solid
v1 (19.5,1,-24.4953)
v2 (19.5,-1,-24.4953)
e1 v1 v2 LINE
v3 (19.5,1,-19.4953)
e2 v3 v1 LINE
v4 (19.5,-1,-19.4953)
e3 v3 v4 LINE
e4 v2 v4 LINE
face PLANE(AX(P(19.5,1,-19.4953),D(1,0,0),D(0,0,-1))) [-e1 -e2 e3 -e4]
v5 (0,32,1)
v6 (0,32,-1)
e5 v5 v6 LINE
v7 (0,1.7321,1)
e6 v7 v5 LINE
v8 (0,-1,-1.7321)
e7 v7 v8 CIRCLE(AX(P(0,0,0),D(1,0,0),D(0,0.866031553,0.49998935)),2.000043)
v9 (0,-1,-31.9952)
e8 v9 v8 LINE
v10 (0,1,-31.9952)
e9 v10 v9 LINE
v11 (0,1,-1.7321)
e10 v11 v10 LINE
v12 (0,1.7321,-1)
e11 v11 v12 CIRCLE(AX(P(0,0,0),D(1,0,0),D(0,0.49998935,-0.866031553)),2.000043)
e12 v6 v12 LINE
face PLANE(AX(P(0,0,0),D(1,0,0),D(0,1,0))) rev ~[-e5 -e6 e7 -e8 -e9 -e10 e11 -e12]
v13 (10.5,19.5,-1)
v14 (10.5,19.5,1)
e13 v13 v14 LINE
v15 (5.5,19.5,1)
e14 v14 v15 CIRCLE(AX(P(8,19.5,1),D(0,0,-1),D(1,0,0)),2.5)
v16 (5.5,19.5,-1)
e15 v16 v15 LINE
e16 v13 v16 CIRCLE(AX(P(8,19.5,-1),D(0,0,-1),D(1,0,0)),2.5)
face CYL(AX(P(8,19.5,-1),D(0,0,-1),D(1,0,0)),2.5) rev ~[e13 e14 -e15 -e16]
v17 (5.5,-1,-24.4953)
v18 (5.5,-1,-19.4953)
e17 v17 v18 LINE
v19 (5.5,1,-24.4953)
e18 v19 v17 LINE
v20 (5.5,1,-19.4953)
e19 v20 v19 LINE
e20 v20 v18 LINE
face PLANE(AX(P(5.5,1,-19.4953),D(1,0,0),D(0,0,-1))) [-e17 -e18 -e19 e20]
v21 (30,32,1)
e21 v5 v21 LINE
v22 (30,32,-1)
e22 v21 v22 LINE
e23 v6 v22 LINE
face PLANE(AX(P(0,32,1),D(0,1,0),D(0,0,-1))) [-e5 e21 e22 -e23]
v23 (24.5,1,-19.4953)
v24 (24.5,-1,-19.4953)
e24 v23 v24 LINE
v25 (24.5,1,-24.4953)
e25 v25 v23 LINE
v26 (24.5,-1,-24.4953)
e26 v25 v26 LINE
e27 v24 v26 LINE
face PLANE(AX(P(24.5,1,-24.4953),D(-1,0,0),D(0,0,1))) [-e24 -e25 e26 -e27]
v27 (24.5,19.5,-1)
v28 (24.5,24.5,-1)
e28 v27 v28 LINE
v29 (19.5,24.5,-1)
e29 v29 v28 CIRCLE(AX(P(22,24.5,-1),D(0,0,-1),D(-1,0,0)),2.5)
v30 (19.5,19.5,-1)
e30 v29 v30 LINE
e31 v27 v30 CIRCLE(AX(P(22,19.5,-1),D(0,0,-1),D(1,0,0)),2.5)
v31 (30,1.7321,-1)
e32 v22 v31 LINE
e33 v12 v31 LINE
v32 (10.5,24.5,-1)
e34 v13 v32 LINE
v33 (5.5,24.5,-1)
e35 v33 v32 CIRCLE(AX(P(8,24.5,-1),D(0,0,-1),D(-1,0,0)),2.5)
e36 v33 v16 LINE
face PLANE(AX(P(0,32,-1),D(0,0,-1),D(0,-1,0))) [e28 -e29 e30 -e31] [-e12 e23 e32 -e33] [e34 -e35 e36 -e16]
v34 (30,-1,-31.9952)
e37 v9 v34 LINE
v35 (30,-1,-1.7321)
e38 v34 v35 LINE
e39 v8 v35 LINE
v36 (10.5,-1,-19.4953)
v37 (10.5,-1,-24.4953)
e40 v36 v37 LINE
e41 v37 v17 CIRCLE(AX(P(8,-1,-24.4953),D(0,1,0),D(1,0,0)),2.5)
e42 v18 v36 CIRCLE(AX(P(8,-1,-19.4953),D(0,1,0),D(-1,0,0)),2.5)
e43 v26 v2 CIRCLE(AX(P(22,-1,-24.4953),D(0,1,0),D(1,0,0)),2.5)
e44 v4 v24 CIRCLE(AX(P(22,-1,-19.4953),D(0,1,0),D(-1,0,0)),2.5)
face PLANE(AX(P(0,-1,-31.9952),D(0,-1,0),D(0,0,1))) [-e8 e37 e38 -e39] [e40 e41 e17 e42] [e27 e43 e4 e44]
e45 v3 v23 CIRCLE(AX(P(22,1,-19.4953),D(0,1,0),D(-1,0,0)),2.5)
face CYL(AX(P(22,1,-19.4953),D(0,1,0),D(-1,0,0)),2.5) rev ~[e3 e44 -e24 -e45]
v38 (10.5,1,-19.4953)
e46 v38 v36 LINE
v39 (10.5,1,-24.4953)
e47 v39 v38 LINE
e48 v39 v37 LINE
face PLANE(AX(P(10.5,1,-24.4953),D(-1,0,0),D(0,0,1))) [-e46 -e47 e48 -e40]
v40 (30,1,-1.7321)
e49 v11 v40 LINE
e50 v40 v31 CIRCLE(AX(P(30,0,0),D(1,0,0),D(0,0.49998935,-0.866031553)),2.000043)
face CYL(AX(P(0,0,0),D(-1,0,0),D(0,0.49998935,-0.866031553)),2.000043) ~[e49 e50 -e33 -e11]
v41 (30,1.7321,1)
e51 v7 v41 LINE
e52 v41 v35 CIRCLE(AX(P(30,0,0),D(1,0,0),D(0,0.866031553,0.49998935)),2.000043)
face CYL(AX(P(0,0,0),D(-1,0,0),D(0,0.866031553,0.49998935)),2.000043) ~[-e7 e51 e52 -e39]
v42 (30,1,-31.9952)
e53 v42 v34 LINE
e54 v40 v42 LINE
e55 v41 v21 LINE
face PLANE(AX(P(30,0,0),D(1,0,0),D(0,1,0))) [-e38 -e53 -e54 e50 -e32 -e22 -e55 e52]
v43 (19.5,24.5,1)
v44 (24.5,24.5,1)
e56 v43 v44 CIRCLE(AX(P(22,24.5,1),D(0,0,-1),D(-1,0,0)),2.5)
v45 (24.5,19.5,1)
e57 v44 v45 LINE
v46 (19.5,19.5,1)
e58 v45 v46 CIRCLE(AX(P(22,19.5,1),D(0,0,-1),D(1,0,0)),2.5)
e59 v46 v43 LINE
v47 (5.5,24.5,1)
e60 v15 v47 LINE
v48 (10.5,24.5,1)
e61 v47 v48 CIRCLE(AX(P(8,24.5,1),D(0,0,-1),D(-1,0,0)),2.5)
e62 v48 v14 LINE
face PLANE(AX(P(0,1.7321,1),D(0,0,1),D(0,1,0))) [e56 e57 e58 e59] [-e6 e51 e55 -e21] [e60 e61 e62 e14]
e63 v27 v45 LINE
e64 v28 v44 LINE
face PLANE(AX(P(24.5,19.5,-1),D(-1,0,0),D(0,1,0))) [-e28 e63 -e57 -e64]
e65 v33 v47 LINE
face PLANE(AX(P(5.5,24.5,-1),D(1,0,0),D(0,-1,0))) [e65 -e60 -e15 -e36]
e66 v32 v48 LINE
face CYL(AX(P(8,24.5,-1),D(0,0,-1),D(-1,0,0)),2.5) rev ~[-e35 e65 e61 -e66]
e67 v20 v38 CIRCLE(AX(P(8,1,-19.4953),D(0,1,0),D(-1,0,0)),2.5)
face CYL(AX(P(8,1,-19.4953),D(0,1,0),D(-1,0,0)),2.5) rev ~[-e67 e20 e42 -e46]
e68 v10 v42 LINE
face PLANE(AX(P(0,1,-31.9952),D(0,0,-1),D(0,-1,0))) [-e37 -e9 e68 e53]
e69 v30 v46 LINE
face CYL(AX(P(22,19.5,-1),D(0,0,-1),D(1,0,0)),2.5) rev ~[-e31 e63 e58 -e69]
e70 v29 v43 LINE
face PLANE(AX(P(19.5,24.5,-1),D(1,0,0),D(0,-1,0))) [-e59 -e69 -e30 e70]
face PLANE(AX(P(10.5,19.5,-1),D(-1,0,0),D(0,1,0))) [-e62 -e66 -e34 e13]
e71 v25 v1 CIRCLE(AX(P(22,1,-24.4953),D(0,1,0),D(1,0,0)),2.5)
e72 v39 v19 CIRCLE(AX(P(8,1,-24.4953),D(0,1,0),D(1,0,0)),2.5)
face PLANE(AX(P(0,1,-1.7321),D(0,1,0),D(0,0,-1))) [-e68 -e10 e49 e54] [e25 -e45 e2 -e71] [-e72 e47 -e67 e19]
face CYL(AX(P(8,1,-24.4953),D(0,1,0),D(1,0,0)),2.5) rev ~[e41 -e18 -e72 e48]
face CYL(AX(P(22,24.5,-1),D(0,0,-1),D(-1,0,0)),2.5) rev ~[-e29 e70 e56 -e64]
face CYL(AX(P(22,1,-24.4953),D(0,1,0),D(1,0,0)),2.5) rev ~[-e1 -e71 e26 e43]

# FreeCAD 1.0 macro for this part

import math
import FreeCAD as App
import Part
import Sketcher
Q = App.Units.Quantity

doc = App.newDocument("Part")
body = doc.addObject("PartDesign::Body", "Body")

# Sketch on YZ plane
sketch1 = doc.addObject("Sketcher::SketchObject", "Sketch")
body.addObject(sketch1)
sketch1.AttachmentSupport = (doc.YZ_Plane, [""])
sketch1.MapMode = "FlatFace"
sketch1.addGeometry([
    Part.LineSegment(App.Vector(32, 1, 0), App.Vector(1.7, 1, 0)),  # 0
    Part.ArcOfCircle(Part.Circle(App.Vector(0, 0, 0), App.Vector(0, 0, 1), 2), math.radians(30), math.radians(240)),  # 1
    Part.LineSegment(App.Vector(-1, -1.7, 0), App.Vector(-1, -32, 0)),  # 2
    Part.LineSegment(App.Vector(-1, -32, 0), App.Vector(1, -32, 0)),  # 3
    Part.LineSegment(App.Vector(1, -32, 0), App.Vector(1, -1.7, 0)),  # 4
    Part.ArcOfCircle(Part.Circle(App.Vector(0, 0, 0), App.Vector(0, 0, 1), 2), math.radians(-60), math.radians(-30)),  # 5
    Part.LineSegment(App.Vector(1.7, -1, 0), App.Vector(32, -1, 0)),  # 6
    Part.LineSegment(App.Vector(32, -1, 0), App.Vector(32, 1, 0)),  # 7
], False)
sketch1.addConstraint([
    Sketcher.Constraint("Coincident", 0, 2, 1, 1),
    Sketcher.Constraint("Coincident", 1, 2, 2, 1),
    Sketcher.Constraint("Coincident", 2, 2, 3, 1),
    Sketcher.Constraint("Coincident", 3, 2, 4, 1),
    Sketcher.Constraint("Coincident", 4, 2, 5, 1),
    Sketcher.Constraint("Coincident", 5, 2, 6, 1),
    Sketcher.Constraint("Coincident", 6, 2, 7, 1),
    Sketcher.Constraint("Coincident", 7, 2, 0, 1),
    Sketcher.Constraint("Horizontal", 0),
    Sketcher.Constraint("Vertical", 2),
    Sketcher.Constraint("Horizontal", 3),
    Sketcher.Constraint("Vertical", 4),
    Sketcher.Constraint("Horizontal", 6),
    Sketcher.Constraint("Vertical", 7),
    Sketcher.Constraint("Coincident", 1, 3, -1, 1),
    Sketcher.Constraint("Coincident", 5, 3, -1, 1),
    Sketcher.Constraint("Equal", 1, 5),
    Sketcher.Constraint("Horizontal", 1, 2, 4, 2),
    Sketcher.Constraint("Vertical", 0, 2, 5, 2),
    Sketcher.Constraint("Equal", 3, 7),
    Sketcher.Constraint("Radius", 1, Q("2 mm")),
    Sketcher.Constraint("DistanceX", 3, 1, 3, 2, Q("2 mm")),
    Sketcher.Constraint("DistanceX", 0, 2, 0, 1, Q("30.268 mm")),
    Sketcher.Constraint("DistanceY", 2, 2, 2, 1, Q("30.263 mm")),
])
pad1 = doc.addObject("PartDesign::Pad", "Pad")
body.addObject(pad1)
pad1.Profile = sketch1
pad1.Length = 30

# Sketch on XZ plane
sketch2 = doc.addObject("Sketcher::SketchObject", "Sketch001")
body.addObject(sketch2)
sketch2.AttachmentSupport = (doc.XZ_Plane, [""])
sketch2.MapMode = "FlatFace"
sketch2.AttachmentOffset = App.Placement(App.Vector(0, 0, -1), App.Rotation())
sketch2.addGeometry([
    Part.LineSegment(App.Vector(10.5, -19.5, 0), App.Vector(10.5, -24.5, 0)),  # 0
    Part.ArcOfCircle(Part.Circle(App.Vector(8, -24.5, 0), App.Vector(0, 0, 1), 2.5), math.radians(180), math.radians(360)),  # 1
    Part.LineSegment(App.Vector(5.5, -24.5, 0), App.Vector(5.5, -19.5, 0)),  # 2
    Part.ArcOfCircle(Part.Circle(App.Vector(8, -19.5, 0), App.Vector(0, 0, 1), 2.5), math.radians(0), math.radians(180)),  # 3
    Part.LineSegment(App.Vector(24.5, -19.5, 0), App.Vector(24.5, -24.5, 0)),  # 4
    Part.ArcOfCircle(Part.Circle(App.Vector(22, -24.5, 0), App.Vector(0, 0, 1), 2.5), math.radians(180), math.radians(360)),  # 5
    Part.LineSegment(App.Vector(19.5, -24.5, 0), App.Vector(19.5, -19.5, 0)),  # 6
    Part.ArcOfCircle(Part.Circle(App.Vector(22, -19.5, 0), App.Vector(0, 0, 1), 2.5), math.radians(0), math.radians(180)),  # 7
], False)
sketch2.addConstraint([
    Sketcher.Constraint("Tangent", 0, 2, 1, 2),
    Sketcher.Constraint("Tangent", 1, 1, 2, 1),
    Sketcher.Constraint("Tangent", 2, 2, 3, 2),
    Sketcher.Constraint("Tangent", 3, 1, 0, 1),
    Sketcher.Constraint("Tangent", 4, 2, 5, 2),
    Sketcher.Constraint("Tangent", 5, 1, 6, 1),
    Sketcher.Constraint("Tangent", 6, 2, 7, 2),
    Sketcher.Constraint("Tangent", 7, 1, 4, 1),
    Sketcher.Constraint("Vertical", 0),
    Sketcher.Constraint("Vertical", 2),
    Sketcher.Constraint("Vertical", 4),
    Sketcher.Constraint("Vertical", 6),
    Sketcher.Constraint("Equal", 3, 5),
    Sketcher.Constraint("Horizontal", 1, 3, 5, 3),
    Sketcher.Constraint("Horizontal", 3, 3, 7, 3),
    Sketcher.Constraint("Radius", 1, Q("2.5 mm")),
    Sketcher.Constraint("DistanceY", 0, 2, 0, 1, Q("5 mm")),
    Sketcher.Constraint("DistanceX", -1, 1, 1, 3, Q("8 mm")),
    Sketcher.Constraint("DistanceX", -1, 1, 5, 3, Q("22 mm")),
    Sketcher.Constraint("DistanceY", 1, 3, -1, 1, Q("24.4953 mm")),
])
pocket1 = doc.addObject("PartDesign::Pocket", "Pocket")
body.addObject(pocket1)
pocket1.Profile = sketch2
pocket1.Length = 10
pocket1.Reversed = True

# Sketch on XY plane
sketch3 = doc.addObject("Sketcher::SketchObject", "Sketch002")
body.addObject(sketch3)
sketch3.AttachmentSupport = (doc.XY_Plane, [""])
sketch3.MapMode = "FlatFace"
sketch3.AttachmentOffset = App.Placement(App.Vector(0, 0, -1), App.Rotation())
sketch3.addGeometry([
    Part.LineSegment(App.Vector(24.5, 24.5, 0), App.Vector(24.5, 19.5, 0)),  # 0
    Part.ArcOfCircle(Part.Circle(App.Vector(22, 19.5, 0), App.Vector(0, 0, 1), 2.5), math.radians(180), math.radians(360)),  # 1
    Part.LineSegment(App.Vector(19.5, 19.5, 0), App.Vector(19.5, 24.5, 0)),  # 2
    Part.ArcOfCircle(Part.Circle(App.Vector(22, 24.5, 0), App.Vector(0, 0, 1), 2.5), math.radians(0), math.radians(180)),  # 3
    Part.LineSegment(App.Vector(10.5, 24.5, 0), App.Vector(10.5, 19.5, 0)),  # 4
    Part.ArcOfCircle(Part.Circle(App.Vector(8, 19.5, 0), App.Vector(0, 0, 1), 2.5), math.radians(180), math.radians(360)),  # 5
    Part.LineSegment(App.Vector(5.5, 19.5, 0), App.Vector(5.5, 24.5, 0)),  # 6
    Part.ArcOfCircle(Part.Circle(App.Vector(8, 24.5, 0), App.Vector(0, 0, 1), 2.5), math.radians(0), math.radians(180)),  # 7
], False)
sketch3.addConstraint([
    Sketcher.Constraint("Tangent", 0, 2, 1, 2),
    Sketcher.Constraint("Tangent", 1, 1, 2, 1),
    Sketcher.Constraint("Tangent", 2, 2, 3, 2),
    Sketcher.Constraint("Tangent", 3, 1, 0, 1),
    Sketcher.Constraint("Tangent", 4, 2, 5, 2),
    Sketcher.Constraint("Tangent", 5, 1, 6, 1),
    Sketcher.Constraint("Tangent", 6, 2, 7, 2),
    Sketcher.Constraint("Tangent", 7, 1, 4, 1),
    Sketcher.Constraint("Vertical", 0),
    Sketcher.Constraint("Vertical", 2),
    Sketcher.Constraint("Vertical", 4),
    Sketcher.Constraint("Vertical", 6),
    Sketcher.Constraint("Equal", 3, 5),
    Sketcher.Constraint("Horizontal", 1, 3, 5, 3),
    Sketcher.Constraint("Horizontal", 3, 3, 7, 3),
    Sketcher.Constraint("Radius", 1, Q("2.5 mm")),
    Sketcher.Constraint("DistanceY", 0, 2, 0, 1, Q("5 mm")),
    Sketcher.Constraint("DistanceX", -1, 1, 5, 3, Q("8 mm")),
    Sketcher.Constraint("DistanceX", -1, 1, 1, 3, Q("22 mm")),
    Sketcher.Constraint("DistanceY", -1, 1, 1, 3, Q("19.5 mm")),
])
pocket2 = doc.addObject("PartDesign::Pocket", "Pocket001")
body.addObject(pocket2)
pocket2.Profile = sketch3
pocket2.Length = 10
pocket2.Reversed = True

doc.recompute()
